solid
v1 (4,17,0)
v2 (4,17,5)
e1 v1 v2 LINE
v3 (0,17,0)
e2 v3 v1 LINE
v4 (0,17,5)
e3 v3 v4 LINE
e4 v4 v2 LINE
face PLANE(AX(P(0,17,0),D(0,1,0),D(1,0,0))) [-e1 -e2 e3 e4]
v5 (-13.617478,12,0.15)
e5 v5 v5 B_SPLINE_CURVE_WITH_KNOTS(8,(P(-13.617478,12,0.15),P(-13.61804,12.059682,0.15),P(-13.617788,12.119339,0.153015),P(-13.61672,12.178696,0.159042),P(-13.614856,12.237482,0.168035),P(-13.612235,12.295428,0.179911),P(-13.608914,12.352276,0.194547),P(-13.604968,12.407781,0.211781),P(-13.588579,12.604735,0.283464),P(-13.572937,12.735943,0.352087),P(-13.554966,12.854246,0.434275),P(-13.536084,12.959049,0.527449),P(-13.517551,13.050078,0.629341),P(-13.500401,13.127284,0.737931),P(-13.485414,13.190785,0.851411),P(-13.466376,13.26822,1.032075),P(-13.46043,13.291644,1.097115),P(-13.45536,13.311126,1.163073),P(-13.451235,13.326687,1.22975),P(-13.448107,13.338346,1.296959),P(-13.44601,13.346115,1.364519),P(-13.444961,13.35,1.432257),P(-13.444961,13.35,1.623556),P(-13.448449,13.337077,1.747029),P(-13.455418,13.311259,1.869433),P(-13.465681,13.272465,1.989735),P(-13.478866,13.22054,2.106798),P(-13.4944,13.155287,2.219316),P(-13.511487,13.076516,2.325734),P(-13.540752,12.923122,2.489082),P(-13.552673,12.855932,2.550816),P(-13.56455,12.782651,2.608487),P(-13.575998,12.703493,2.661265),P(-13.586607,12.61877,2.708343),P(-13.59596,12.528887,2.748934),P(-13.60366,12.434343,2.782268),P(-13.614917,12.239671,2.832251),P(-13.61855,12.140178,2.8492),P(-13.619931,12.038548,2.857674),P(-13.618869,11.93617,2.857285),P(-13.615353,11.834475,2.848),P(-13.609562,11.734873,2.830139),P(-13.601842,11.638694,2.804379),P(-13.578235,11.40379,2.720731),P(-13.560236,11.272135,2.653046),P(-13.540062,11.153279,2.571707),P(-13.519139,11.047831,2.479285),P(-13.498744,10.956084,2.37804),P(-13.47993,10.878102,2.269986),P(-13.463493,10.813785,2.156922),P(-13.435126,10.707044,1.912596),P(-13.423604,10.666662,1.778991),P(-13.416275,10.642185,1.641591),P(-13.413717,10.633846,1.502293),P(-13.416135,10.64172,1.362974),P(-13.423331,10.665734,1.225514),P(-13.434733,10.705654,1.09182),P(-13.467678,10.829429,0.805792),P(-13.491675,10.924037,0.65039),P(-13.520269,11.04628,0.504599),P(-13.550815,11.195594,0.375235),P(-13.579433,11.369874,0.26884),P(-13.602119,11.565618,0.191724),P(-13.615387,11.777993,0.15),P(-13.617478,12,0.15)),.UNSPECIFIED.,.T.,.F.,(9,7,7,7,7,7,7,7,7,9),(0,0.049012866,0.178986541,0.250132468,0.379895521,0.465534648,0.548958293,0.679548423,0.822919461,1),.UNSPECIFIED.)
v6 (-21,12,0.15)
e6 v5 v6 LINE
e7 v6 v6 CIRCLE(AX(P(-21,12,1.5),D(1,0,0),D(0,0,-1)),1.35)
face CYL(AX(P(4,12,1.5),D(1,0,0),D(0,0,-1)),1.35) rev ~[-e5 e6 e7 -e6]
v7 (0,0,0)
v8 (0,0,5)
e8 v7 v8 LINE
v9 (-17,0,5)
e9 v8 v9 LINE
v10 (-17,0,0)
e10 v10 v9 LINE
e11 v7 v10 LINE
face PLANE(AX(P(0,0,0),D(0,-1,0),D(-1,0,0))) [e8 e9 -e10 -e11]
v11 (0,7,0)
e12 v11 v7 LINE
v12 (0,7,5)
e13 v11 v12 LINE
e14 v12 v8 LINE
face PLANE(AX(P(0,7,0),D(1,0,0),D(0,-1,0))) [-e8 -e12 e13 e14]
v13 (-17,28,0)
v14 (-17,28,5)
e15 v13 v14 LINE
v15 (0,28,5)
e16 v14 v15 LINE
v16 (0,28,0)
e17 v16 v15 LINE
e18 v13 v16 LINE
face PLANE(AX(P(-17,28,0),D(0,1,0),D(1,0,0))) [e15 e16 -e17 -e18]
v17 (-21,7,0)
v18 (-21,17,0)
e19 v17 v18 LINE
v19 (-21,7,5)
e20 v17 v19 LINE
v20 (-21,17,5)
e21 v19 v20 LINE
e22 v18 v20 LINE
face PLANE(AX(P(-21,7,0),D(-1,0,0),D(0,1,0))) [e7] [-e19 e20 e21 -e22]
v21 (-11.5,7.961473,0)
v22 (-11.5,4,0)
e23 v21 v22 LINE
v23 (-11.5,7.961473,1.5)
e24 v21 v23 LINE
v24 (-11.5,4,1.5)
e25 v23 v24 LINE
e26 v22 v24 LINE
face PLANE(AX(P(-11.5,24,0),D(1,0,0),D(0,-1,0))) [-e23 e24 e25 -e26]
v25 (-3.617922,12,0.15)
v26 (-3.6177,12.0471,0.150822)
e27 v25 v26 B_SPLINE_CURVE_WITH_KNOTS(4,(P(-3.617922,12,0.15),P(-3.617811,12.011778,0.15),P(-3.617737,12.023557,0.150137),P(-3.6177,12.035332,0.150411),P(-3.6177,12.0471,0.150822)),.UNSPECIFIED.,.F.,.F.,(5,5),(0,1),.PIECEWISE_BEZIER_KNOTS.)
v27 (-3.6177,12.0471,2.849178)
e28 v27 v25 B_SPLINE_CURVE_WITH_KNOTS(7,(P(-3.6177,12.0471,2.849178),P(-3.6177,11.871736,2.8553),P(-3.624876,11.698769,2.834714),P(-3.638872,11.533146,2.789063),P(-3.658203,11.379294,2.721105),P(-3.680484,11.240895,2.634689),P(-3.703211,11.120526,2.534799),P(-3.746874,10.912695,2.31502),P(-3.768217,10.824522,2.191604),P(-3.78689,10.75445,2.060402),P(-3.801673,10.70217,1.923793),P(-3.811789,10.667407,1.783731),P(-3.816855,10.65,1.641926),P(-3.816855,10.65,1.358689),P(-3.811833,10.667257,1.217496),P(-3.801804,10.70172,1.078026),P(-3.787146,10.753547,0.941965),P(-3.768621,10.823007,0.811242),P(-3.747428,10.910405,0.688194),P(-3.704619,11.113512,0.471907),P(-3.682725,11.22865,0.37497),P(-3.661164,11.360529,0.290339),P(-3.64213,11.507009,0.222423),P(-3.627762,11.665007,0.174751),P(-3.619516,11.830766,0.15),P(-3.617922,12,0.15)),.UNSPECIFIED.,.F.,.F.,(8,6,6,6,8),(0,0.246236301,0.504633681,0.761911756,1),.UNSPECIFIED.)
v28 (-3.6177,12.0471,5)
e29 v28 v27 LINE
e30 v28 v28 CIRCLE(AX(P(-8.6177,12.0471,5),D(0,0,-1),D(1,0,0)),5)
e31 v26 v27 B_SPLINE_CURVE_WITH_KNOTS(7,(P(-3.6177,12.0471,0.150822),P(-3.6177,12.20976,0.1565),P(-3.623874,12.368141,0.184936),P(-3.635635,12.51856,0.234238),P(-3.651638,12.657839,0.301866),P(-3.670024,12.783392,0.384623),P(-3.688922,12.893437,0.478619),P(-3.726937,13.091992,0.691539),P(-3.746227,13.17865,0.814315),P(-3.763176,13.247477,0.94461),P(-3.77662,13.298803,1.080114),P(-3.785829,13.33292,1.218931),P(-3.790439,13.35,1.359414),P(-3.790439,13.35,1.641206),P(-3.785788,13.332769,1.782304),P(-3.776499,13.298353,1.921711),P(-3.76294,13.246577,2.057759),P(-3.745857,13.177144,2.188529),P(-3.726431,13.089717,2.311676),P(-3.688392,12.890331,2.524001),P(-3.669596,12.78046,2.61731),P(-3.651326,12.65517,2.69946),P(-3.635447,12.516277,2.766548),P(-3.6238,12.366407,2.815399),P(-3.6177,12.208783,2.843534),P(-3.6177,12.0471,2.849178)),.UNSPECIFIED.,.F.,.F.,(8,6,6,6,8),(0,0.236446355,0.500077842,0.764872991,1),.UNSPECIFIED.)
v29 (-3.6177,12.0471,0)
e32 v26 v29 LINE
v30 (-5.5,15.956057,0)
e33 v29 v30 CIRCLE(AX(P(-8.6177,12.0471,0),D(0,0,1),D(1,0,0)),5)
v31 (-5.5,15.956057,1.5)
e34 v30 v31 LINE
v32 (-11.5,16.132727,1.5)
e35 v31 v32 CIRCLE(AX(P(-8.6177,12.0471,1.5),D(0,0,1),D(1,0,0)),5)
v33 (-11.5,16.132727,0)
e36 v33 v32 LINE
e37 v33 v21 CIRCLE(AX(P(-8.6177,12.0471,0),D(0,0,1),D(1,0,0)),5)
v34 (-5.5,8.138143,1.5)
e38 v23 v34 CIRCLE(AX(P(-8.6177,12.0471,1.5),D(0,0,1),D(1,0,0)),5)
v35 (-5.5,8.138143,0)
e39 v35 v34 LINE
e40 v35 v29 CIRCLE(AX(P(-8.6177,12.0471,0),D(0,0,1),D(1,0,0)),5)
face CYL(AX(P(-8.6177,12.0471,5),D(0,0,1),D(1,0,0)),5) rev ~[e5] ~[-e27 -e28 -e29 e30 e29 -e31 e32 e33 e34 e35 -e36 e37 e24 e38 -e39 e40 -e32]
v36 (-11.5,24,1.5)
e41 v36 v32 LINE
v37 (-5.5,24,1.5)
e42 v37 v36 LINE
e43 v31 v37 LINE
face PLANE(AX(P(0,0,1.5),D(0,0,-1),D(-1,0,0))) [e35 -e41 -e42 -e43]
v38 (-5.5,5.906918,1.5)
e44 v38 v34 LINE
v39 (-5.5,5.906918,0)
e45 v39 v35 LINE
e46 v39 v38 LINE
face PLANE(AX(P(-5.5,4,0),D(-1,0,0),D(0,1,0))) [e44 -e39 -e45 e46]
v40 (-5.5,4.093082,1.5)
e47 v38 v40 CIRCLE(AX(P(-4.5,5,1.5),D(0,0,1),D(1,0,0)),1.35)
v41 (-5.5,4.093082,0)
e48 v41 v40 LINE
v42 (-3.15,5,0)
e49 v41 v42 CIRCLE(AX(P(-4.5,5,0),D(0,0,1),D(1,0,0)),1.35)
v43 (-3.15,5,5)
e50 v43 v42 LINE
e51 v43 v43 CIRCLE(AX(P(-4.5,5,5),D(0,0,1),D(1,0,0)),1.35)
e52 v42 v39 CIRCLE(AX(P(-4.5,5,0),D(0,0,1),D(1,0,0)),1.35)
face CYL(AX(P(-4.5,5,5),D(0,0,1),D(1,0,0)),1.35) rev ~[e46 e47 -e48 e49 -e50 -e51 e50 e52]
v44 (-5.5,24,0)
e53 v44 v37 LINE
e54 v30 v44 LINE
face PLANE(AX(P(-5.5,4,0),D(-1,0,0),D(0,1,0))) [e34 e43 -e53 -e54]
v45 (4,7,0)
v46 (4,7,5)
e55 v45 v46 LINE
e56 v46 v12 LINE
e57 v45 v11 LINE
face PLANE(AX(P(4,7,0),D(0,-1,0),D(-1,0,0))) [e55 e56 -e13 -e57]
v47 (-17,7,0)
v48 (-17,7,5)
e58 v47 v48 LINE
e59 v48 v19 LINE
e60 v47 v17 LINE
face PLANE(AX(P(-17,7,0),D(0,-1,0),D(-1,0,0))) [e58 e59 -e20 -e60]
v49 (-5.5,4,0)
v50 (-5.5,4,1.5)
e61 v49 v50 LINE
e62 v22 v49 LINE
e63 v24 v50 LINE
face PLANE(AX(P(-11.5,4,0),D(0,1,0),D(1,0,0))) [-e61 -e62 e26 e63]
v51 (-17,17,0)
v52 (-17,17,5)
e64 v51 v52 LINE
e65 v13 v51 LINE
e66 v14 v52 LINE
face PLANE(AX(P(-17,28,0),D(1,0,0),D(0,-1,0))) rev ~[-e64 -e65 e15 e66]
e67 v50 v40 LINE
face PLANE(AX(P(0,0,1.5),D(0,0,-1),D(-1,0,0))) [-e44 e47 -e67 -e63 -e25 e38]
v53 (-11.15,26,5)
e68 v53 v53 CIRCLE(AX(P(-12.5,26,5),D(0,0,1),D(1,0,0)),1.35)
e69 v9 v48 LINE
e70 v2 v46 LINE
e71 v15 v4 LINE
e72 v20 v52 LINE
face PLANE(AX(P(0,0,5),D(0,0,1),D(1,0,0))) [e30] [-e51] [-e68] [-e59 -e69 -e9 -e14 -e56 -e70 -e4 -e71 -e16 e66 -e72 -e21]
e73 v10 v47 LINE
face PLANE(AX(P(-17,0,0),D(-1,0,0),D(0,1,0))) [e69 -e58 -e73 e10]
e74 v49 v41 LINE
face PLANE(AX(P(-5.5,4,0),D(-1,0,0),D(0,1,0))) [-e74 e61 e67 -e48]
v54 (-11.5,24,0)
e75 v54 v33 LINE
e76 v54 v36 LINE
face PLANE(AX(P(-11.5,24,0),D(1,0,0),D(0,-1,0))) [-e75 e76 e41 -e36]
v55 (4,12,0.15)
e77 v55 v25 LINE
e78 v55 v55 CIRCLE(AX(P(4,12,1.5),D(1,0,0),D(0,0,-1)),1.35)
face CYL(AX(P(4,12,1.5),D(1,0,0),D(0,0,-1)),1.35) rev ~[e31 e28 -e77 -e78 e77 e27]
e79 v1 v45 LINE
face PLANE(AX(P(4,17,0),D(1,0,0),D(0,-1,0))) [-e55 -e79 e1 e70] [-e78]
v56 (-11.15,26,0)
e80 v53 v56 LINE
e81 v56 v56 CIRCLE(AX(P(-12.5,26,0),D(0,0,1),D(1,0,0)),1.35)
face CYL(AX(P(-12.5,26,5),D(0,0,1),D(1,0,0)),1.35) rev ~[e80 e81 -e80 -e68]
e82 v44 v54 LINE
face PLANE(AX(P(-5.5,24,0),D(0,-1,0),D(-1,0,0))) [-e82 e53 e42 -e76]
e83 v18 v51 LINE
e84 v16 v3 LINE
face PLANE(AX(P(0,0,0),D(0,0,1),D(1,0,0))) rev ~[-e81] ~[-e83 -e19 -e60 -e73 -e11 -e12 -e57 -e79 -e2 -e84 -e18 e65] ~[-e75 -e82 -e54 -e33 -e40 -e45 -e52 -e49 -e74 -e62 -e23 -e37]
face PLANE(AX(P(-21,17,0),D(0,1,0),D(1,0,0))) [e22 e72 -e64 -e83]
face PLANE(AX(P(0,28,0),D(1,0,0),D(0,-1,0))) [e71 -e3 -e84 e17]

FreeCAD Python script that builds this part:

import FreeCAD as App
import Part
import Sketcher

V = App.Vector

doc = App.newDocument("Part")
body = doc.addObject("PartDesign::Body", "Body")

# Sketch on XY plane
sketch1 = doc.addObject("Sketcher::SketchObject", "Sketch")
body.addObject(sketch1)
sketch1.AttachmentSupport = (doc.XY_Plane, [""])
sketch1.MapMode = "FlatFace"
sketch1.addGeometry([
    Part.LineSegment(V(0, 28, 0), V(-17, 28, 0)),  # 0
    Part.LineSegment(V(-17, 28, 0), V(-17, 17, 0)),  # 1
    Part.LineSegment(V(-17, 17, 0), V(-21, 17, 0)),  # 2
    Part.LineSegment(V(-21, 17, 0), V(-21, 7, 0)),  # 3
    Part.LineSegment(V(-21, 7, 0), V(-17, 7, 0)),  # 4
    Part.LineSegment(V(-17, 7, 0), V(-17, 0, 0)),  # 5
    Part.LineSegment(V(-17, 0, 0), V(0, 0, 0)),  # 6
    Part.LineSegment(V(0, 0, 0), V(0, 7, 0)),  # 7
    Part.LineSegment(V(0, 7, 0), V(4, 7, 0)),  # 8
    Part.LineSegment(V(4, 7, 0), V(4, 17, 0)),  # 9
    Part.LineSegment(V(4, 17, 0), V(0, 17, 0)),  # 10
    Part.LineSegment(V(0, 17, 0), V(0, 28, 0)),  # 11
], False)
sketch1.addConstraint([
    Sketcher.Constraint("Coincident", 0, 2, 1, 1),
    Sketcher.Constraint("Coincident", 1, 2, 2, 1),
    Sketcher.Constraint("Coincident", 2, 2, 3, 1),
    Sketcher.Constraint("Coincident", 3, 2, 4, 1),
    Sketcher.Constraint("Coincident", 4, 2, 5, 1),
    Sketcher.Constraint("Coincident", 5, 2, 6, 1),
    Sketcher.Constraint("Coincident", 6, 2, 7, 1),
    Sketcher.Constraint("Coincident", 7, 2, 8, 1),
    Sketcher.Constraint("Coincident", 8, 2, 9, 1),
    Sketcher.Constraint("Coincident", 9, 2, 10, 1),
    Sketcher.Constraint("Coincident", 10, 2, 11, 1),
    Sketcher.Constraint("Coincident", 11, 2, 0, 1),
    Sketcher.Constraint("Horizontal", 0),
    Sketcher.Constraint("Vertical", 1),
    Sketcher.Constraint("Horizontal", 2),
    Sketcher.Constraint("Vertical", 3),
    Sketcher.Constraint("Horizontal", 4),
    Sketcher.Constraint("Vertical", 5),
    Sketcher.Constraint("Horizontal", 6),
    Sketcher.Constraint("Vertical", 7),
    Sketcher.Constraint("Horizontal", 8),
    Sketcher.Constraint("Vertical", 9),
    Sketcher.Constraint("Horizontal", 10),
    Sketcher.Constraint("Vertical", 11),
    Sketcher.Constraint("Coincident", 6, 2, -1, 1),
    Sketcher.Constraint("PointOnObject", 10, 2, -2),
    Sketcher.Constraint("Horizontal", 4, 2, 7, 2),
    Sketcher.Constraint("Horizontal", 2, 2, 9, 2),
    Sketcher.Constraint("Vertical", 1, 2, 4, 2),
    Sketcher.Constraint("Equal", 4, 8),
    Sketcher.Constraint("DistanceX", 0, 2, 0, 1, 17.0),
    Sketcher.Constraint("DistanceX", 2, 2, 2, 1, 4.0),
    Sketcher.Constraint("DistanceY", 3, 2, 3, 1, 10.0),
    Sketcher.Constraint("DistanceY", 5, 2, 5, 1, 7.0),
    Sketcher.Constraint("DistanceY", -1, 1, 0, 2, 28.0),
])
pad1 = doc.addObject("PartDesign::Pad", "Pad")
body.addObject(pad1)
pad1.Profile = sketch1
pad1.Length = 5

# Sketch on XY plane
sketch2 = doc.addObject("Sketcher::SketchObject", "Sketch001")
body.addObject(sketch2)
sketch2.AttachmentSupport = (doc.XY_Plane, [""])
sketch2.MapMode = "FlatFace"
sketch2.addGeometry([
    Part.LineSegment(V(-12, 4, 0), V(-12, 24, 0)),
    Part.LineSegment(V(-12, 24, 0), V(-6, 24, 0)),
    Part.LineSegment(V(-6, 24, 0), V(-6, 4, 0)),
    Part.LineSegment(V(-6, 4, 0), V(-12, 4, 0)),
], False)
sketch2.addConstraint([
    Sketcher.Constraint("Coincident", 0, 2, 1, 1),
    Sketcher.Constraint("Coincident", 1, 2, 2, 1),
    Sketcher.Constraint("Coincident", 2, 2, 3, 1),
    Sketcher.Constraint("Coincident", 3, 2, 0, 1),
    Sketcher.Constraint("Vertical", 0),
    Sketcher.Constraint("Horizontal", 1),
    Sketcher.Constraint("Vertical", 2),
    Sketcher.Constraint("Horizontal", 3),
    Sketcher.Constraint("DistanceX", 1, 1, 1, 2, 6.0),
    Sketcher.Constraint("DistanceY", 0, 1, 0, 2, 20.0),
    Sketcher.Constraint("DistanceY", -1, 1, 2, 2, 4.0),
    Sketcher.Constraint("DistanceX", 1, 2, -1, 1, 5.5),
])
pocket1 = doc.addObject("PartDesign::Pocket", "Pocket")
body.addObject(pocket1)
pocket1.Profile = sketch2
pocket1.Length = 1.5
pocket1.Reversed = True

# Sketch on XY plane
sketch3 = doc.addObject("Sketcher::SketchObject", "Sketch002")
body.addObject(sketch3)
sketch3.AttachmentSupport = (doc.XY_Plane, [""])
sketch3.MapMode = "FlatFace"
sketch3.AttachmentOffset = App.Placement(V(0, 0, 5), App.Rotation())
sketch3.addGeometry(Part.Circle(V(-9, 12, 0), V(0, 0, 1), 5), False)
sketch3.addConstraint([
    Sketcher.Constraint("Diameter", 0, 10.0),
    Sketcher.Constraint("DistanceY", -1, 1, 0, 3, 12.047),
    Sketcher.Constraint("DistanceX", 0, 3, -1, 1, 8.6177),
])
pocket2 = doc.addObject("PartDesign::Pocket", "Pocket001")
body.addObject(pocket2)
pocket2.Profile = sketch3
pocket2.Type = "ThroughAll"

# Sketch on XY plane
sketch4 = doc.addObject("Sketcher::SketchObject", "Sketch003")
body.addObject(sketch4)
sketch4.AttachmentSupport = (doc.XY_Plane, [""])
sketch4.MapMode = "FlatFace"
sketch4.AttachmentOffset = App.Placement(V(0, 0, 5), App.Rotation())
sketch4.addGeometry(Part.Circle(V(-12.5, 26, 0), V(0, 0, 1), 1.4), False)
sketch4.addConstraint([
    Sketcher.Constraint("Diameter", 0, 2.7),
    Sketcher.Constraint("DistanceY", -1, 1, 0, 3, 26.0),
    Sketcher.Constraint("DistanceX", 0, 3, -1, 1, 12.5),
])
pocket3 = doc.addObject("PartDesign::Pocket", "Pocket002")
body.addObject(pocket3)
pocket3.Profile = sketch4
pocket3.Type = "ThroughAll"

# Sketch on XY plane
sketch5 = doc.addObject("Sketcher::SketchObject", "Sketch004")
body.addObject(sketch5)
sketch5.AttachmentSupport = (doc.XY_Plane, [""])
sketch5.MapMode = "FlatFace"
sketch5.AttachmentOffset = App.Placement(V(0, 0, 5), App.Rotation())
sketch5.addGeometry(Part.Circle(V(-4.5, 5, 0), V(0, 0, 1), 1.4), False)
sketch5.addConstraint([
    Sketcher.Constraint("Diameter", 0, 2.7),
    Sketcher.Constraint("DistanceY", -1, 1, 0, 3, 5.0),
    Sketcher.Constraint("DistanceX", 0, 3, -1, 1, 4.5),
])
pocket4 = doc.addObject("PartDesign::Pocket", "Pocket003")
body.addObject(pocket4)
pocket4.Profile = sketch5
pocket4.Type = "ThroughAll"

# Sketch on YZ plane
sketch6 = doc.addObject("Sketcher::SketchObject", "Sketch005")
body.addObject(sketch6)
sketch6.AttachmentSupport = (doc.YZ_Plane, [""])
sketch6.MapMode = "FlatFace"
sketch6.AttachmentOffset = App.Placement(V(0, 0, 4), App.Rotation())
sketch6.addGeometry(Part.Circle(V(12, 1.5, 0), V(0, 0, 1), 1.4), False)
sketch6.addConstraint([
    Sketcher.Constraint("Diameter", 0, 2.7),
    Sketcher.Constraint("DistanceY", -1, 1, 0, 3, 1.5),
    Sketcher.Constraint("DistanceX", -1, 1, 0, 3, 12.0),
])
pocket5 = doc.addObject("PartDesign::Pocket", "Pocket004")
body.addObject(pocket5)
pocket5.Profile = sketch6
pocket5.Type = "ThroughAll"

doc.recompute()
